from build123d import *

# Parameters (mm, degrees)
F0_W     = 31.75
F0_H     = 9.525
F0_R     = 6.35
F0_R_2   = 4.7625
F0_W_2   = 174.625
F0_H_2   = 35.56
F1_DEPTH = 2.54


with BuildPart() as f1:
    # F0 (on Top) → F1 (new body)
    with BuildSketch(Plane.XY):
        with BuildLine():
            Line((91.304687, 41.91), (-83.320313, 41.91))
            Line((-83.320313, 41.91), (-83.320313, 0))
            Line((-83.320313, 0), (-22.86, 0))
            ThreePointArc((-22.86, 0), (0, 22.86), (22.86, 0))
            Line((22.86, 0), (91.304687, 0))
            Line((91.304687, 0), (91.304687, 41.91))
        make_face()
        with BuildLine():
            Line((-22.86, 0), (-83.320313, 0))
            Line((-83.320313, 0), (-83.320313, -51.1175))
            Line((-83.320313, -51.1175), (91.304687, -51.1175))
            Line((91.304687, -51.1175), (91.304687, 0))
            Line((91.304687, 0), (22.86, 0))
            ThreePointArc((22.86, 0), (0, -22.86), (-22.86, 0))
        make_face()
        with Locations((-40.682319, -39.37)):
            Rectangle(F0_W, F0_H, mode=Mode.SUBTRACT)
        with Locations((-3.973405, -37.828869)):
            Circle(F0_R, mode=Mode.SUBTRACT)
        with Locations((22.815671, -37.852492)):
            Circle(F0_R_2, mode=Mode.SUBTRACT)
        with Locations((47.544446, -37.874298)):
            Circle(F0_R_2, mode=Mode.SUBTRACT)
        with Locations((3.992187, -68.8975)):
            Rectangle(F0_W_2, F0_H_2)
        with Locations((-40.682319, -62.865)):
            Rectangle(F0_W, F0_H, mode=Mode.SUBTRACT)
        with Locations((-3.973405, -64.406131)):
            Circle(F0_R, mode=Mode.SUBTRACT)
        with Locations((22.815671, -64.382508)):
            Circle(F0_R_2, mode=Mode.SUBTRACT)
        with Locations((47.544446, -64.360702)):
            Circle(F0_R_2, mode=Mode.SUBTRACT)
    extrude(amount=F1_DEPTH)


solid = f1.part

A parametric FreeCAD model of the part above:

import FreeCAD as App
import Part
import Sketcher

V = App.Vector
Q = App.Units.Quantity


def add_polygon(sketch, points):
    """Adds a closed chain of lines whose ends are joined by coincident constraints."""
    first, n = sketch.GeometryCount, len(points)
    for a, b in zip(points, points[1:] + points[:1]):
        sketch.addGeometry(Part.LineSegment(App.Vector(*a, 0), App.Vector(*b, 0)), False)
    for i in range(n):
        sketch.addConstraint(Sketcher.Constraint("Coincident", first + i, 2, first + (i + 1) % n, 1))

doc = App.newDocument("Part")
body = doc.addObject("PartDesign::Body", "Body")

sketch1 = doc.addObject("Sketcher::SketchObject", "Sketch")
body.addObject(sketch1)
sketch1.AttachmentSupport = (doc.XY_Plane, [""])
sketch1.MapMode = "FlatFace"
add_polygon(sketch1, [(91.3, 41.9), (-83.3, 41.9), (-83.3, -86.7), (91.3, -86.7)])
add_polygon(sketch1, [(-24.8, -67.6), (-56.6, -67.6), (-56.6, -58.1), (-24.8, -58.1)])
sketch1.addGeometry(Part.Circle(V(-4, -64.4, 0), V(0, 0, 1), 6.3), False)
add_polygon(sketch1, [(-24.8, -44.1), (-56.6, -44.1), (-56.6, -34.6), (-24.8, -34.6)])
sketch1.addGeometry(Part.Circle(V(-4, -37.8, 0), V(0, 0, 1), 6.3), False)
sketch1.addGeometry(Part.Circle(V(22.8, -64.4, 0), V(0, 0, 1), 4.8), False)
sketch1.addGeometry(Part.Circle(V(47.5, -64.4, 0), V(0, 0, 1), 4.8), False)
sketch1.addGeometry(Part.Circle(V(22.8, -37.9, 0), V(0, 0, 1), 4.8), False)
sketch1.addGeometry(Part.Circle(V(47.5, -37.9, 0), V(0, 0, 1), 4.8), False)
sketch1.addGeometry(Part.Circle(V(0, 0, 0), V(0, 0, 1), 22.9), False)
sketch1.addConstraint([
    Sketcher.Constraint("Horizontal", 0),
    Sketcher.Constraint("Vertical", 1),
    Sketcher.Constraint("Horizontal", 2),
    Sketcher.Constraint("Vertical", 3),
    Sketcher.Constraint("Horizontal", 4),
    Sketcher.Constraint("Vertical", 5),
    Sketcher.Constraint("Horizontal", 6),
    Sketcher.Constraint("Vertical", 7),
    Sketcher.Constraint("Horizontal", 9),
    Sketcher.Constraint("Vertical", 10),
    Sketcher.Constraint("Horizontal", 11),
    Sketcher.Constraint("Vertical", 12),
    Sketcher.Constraint("Coincident", 18, 3, -1, 1),
    Sketcher.Constraint("Equal", 8, 13),
    Sketcher.Constraint("Equal", 14, 15),
    Sketcher.Constraint("Equal", 15, 16),
    Sketcher.Constraint("Equal", 16, 17),
    Sketcher.Constraint("Vertical", 8, 3, 13, 3),
    Sketcher.Constraint("Vertical", 14, 3, 16, 3),
    Sketcher.Constraint("Vertical", 15, 3, 17, 3),
    Sketcher.Constraint("Vertical", 5, 2, 9, 2),
    Sketcher.Constraint("Vertical", 7, 2, 11, 2),
    Sketcher.Constraint("Equal", 7, 10),
    Sketcher.Constraint("Diameter", 8, Q("0.5 in")),
    Sketcher.Constraint("Diameter", 18, Q("1.8 in")),
    Sketcher.Constraint("Diameter", 14, Q("0.375 in")),
    Sketcher.Constraint("DistanceX", 4, 2, 4, 1, Q("1.25 in")),
    Sketcher.Constraint("DistanceY", 4, 2, 10, 2, Q("1.3 in")),
    Sketcher.Constraint("DistanceX", 0, 2, 0, 1, Q("6.875 in")),
    Sketcher.Constraint("DistanceY", 1, 2, 1, 1, Q("5.0625 in")),
    Sketcher.Constraint("DistanceY", 5, 1, 5, 2, Q("0.375 in")),
    Sketcher.Constraint("DistanceY", -1, 1, 0, 2, Q("1.65 in")),
    Sketcher.Constraint("DistanceY", 1, 2, 4, 2, Q("0.75 in")),
    Sketcher.Constraint("DistanceY", 17, 3, -1, 1, 37.874298),
    Sketcher.Constraint("DistanceY", 15, 3, 3, 2, 106.270702),
    Sketcher.Constraint("DistanceY", 8, 3, -1, 1, 64.406131),
    Sketcher.Constraint("DistanceY", 13, 3, -1, 1, 37.828869),
    Sketcher.Constraint("DistanceX", -1, 1, 14, 3, 22.815671),
    Sketcher.Constraint("DistanceY", 14, 3, -1, 1, 64.382508),
    Sketcher.Constraint("DistanceY", 16, 3, -1, 1, 37.852492),
    Sketcher.Constraint("DistanceX", 4, 2, -1, 1, 56.557319),
    Sketcher.Constraint("DistanceX", 8, 3, 15, 3, 51.517851),
    Sketcher.Constraint("DistanceX", 0, 2, 13, 3, 79.346908),
    Sketcher.Constraint("DistanceX", 8, 3, -1, 1, 3.973405),
])
pad1 = doc.addObject("PartDesign::Pad", "Pad")
body.addObject(pad1)
pad1.Profile = sketch1
pad1.Length = Q("0.1 in")

doc.recompute()
